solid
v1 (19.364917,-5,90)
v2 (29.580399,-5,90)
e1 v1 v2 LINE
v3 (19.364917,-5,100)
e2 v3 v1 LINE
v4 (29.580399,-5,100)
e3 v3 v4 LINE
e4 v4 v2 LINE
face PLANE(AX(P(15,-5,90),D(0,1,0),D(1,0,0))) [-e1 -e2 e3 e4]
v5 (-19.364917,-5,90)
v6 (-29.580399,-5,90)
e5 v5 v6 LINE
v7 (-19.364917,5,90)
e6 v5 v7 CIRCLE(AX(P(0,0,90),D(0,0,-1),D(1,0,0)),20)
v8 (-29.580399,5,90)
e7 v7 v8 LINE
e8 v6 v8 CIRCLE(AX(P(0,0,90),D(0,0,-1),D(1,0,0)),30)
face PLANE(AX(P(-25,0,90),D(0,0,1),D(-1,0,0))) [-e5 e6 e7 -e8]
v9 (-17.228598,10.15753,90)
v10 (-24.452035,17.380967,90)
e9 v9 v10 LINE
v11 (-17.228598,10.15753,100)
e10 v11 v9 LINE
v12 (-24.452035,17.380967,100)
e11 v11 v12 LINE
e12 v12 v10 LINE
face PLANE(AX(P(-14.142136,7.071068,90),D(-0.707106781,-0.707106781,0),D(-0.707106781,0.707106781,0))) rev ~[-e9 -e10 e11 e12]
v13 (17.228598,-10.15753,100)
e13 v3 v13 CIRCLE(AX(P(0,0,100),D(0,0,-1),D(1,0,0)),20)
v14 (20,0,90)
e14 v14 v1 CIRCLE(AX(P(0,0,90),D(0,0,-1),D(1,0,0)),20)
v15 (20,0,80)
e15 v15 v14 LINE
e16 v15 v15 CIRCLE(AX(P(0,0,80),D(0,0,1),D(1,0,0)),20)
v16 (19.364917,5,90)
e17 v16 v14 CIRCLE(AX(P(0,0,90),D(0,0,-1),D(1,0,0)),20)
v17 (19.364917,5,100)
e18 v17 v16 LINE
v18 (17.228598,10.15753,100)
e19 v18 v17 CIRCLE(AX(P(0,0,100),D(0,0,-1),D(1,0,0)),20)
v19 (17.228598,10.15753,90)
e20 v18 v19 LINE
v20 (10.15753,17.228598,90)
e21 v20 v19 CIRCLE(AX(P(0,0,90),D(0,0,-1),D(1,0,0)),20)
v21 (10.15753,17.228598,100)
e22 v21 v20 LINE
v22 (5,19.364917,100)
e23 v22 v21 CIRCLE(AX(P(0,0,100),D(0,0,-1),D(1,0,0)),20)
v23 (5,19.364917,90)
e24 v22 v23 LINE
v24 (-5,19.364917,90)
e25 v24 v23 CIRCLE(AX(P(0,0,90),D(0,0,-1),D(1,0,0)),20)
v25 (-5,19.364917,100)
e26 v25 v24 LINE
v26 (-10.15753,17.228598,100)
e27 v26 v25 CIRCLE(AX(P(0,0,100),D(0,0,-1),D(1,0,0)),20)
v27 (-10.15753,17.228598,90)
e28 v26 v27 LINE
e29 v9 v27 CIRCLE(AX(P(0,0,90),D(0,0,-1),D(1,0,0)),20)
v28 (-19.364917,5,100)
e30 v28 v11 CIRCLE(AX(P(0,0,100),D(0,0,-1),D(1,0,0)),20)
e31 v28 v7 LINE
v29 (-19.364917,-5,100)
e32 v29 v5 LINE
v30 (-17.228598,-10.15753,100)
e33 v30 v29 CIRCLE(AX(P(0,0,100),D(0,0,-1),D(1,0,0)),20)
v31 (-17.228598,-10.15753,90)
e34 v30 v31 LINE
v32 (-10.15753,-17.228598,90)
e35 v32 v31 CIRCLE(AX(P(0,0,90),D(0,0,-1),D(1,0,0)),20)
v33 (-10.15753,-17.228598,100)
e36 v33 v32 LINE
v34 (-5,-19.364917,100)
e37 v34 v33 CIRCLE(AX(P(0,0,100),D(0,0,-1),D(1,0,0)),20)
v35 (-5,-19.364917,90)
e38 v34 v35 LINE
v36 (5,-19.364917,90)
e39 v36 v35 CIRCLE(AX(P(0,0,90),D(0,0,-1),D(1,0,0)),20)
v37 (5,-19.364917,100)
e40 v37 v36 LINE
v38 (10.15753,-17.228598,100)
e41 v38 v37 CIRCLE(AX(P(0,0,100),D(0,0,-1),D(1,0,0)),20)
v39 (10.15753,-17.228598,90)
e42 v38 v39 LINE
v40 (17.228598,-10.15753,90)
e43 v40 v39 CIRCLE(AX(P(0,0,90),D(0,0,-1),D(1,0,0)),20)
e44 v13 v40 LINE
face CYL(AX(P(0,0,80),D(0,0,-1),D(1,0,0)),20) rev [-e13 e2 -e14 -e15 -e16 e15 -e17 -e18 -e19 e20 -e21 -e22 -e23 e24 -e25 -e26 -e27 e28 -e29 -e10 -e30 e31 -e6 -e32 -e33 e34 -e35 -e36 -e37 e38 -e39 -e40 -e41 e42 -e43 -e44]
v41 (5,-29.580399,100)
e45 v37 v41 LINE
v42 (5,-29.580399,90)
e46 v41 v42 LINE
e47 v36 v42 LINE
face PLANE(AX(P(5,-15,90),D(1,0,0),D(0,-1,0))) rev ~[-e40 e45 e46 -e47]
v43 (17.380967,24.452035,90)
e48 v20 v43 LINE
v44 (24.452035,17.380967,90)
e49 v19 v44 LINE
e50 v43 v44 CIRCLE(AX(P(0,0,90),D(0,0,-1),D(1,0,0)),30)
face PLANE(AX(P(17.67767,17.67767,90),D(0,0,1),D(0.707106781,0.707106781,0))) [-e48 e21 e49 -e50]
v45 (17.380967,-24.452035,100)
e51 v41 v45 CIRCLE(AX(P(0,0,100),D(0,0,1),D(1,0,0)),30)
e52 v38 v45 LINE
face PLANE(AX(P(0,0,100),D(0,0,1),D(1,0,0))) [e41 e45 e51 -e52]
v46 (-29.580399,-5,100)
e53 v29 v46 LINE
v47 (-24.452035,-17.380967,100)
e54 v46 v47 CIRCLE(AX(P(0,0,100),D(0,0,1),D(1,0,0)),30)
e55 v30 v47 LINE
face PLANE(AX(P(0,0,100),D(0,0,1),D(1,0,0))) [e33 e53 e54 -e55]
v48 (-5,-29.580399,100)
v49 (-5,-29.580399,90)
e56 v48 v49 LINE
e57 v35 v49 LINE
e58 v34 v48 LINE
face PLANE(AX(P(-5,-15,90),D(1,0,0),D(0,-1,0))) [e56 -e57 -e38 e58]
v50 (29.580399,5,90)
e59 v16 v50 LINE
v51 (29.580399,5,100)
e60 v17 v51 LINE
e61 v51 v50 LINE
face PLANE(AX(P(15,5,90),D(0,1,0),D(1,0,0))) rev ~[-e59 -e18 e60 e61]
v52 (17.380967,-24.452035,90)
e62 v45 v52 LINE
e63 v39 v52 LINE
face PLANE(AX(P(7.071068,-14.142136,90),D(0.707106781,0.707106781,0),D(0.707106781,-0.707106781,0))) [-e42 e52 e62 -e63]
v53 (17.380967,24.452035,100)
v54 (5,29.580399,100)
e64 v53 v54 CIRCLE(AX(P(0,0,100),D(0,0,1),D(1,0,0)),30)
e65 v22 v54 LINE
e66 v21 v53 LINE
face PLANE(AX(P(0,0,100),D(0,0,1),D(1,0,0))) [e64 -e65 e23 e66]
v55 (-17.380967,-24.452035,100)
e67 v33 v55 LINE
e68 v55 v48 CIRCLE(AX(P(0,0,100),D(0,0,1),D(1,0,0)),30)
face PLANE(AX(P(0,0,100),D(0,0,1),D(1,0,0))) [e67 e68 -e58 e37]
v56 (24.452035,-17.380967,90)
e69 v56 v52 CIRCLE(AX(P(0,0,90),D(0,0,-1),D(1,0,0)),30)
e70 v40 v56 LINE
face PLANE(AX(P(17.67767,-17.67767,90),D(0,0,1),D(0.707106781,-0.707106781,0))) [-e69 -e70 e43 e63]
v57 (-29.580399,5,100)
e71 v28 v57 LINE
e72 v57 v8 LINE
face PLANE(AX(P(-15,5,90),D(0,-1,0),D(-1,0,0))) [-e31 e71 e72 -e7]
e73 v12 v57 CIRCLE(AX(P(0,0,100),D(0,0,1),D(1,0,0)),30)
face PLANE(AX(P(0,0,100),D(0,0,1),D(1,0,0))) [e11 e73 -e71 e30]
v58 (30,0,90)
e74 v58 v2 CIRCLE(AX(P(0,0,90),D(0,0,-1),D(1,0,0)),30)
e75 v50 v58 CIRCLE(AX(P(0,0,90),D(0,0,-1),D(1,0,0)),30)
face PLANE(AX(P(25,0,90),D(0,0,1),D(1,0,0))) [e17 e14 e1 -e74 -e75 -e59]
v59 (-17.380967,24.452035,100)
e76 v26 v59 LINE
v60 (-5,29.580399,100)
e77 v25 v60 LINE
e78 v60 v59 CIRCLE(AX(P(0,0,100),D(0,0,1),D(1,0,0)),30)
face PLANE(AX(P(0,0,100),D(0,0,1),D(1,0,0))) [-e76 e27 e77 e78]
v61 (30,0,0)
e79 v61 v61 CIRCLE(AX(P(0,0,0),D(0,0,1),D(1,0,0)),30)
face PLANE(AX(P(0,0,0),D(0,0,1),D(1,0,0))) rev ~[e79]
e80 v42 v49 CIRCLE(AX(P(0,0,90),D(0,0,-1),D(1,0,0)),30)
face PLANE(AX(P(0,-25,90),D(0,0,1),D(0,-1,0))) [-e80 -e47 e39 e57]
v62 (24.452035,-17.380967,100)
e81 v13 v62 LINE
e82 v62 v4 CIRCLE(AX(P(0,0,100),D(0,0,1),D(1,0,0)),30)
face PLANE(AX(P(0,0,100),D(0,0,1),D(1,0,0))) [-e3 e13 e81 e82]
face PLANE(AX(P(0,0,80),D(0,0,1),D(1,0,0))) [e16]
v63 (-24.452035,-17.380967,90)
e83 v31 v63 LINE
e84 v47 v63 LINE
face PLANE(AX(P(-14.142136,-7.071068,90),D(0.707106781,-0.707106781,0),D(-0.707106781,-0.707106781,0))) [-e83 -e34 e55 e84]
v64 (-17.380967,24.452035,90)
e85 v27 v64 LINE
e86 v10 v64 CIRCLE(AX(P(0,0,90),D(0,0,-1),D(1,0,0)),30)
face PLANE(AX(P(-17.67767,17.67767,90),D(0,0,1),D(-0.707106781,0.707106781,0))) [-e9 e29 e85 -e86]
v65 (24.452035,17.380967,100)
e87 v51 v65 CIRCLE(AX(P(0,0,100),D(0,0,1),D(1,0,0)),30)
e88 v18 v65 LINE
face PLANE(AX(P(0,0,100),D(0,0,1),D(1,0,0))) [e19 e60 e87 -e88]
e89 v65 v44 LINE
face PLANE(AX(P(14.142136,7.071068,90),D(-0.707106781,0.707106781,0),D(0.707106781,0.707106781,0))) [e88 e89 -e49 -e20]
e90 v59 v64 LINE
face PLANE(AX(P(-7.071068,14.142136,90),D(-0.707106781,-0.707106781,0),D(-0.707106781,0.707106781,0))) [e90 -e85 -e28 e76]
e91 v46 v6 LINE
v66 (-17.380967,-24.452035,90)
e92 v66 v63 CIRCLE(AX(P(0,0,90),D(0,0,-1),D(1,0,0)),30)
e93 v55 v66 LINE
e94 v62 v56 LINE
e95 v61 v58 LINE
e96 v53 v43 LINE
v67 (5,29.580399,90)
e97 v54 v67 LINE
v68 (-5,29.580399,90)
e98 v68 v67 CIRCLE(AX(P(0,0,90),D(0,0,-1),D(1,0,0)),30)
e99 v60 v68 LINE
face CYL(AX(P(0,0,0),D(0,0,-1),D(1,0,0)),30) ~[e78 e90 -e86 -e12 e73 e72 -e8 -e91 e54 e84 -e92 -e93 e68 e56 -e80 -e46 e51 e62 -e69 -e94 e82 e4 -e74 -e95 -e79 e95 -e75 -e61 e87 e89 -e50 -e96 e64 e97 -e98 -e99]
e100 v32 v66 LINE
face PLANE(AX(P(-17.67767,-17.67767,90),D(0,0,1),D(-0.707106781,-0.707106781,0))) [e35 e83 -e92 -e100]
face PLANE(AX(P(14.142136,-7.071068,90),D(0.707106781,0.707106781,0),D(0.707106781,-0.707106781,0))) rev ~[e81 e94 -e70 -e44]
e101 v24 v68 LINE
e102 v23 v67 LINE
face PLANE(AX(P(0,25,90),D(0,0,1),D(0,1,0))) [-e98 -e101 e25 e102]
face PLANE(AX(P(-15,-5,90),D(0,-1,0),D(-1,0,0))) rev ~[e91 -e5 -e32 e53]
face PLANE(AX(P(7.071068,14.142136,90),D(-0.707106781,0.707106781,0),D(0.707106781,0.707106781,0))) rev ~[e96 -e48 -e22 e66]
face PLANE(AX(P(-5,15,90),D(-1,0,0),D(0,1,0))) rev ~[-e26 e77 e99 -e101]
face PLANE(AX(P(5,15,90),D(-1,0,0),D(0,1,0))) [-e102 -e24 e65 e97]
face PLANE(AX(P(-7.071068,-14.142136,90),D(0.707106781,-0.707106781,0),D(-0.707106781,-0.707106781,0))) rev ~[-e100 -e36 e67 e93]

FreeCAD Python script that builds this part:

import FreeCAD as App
import Part
import Sketcher

doc = App.newDocument("Part")
body = doc.addObject("PartDesign::Body", "Body")

# Sketch on XY plane
sketch1 = body.newObject("Sketcher::SketchObject", "Sketch")
sketch1.AttachmentSupport = (doc.getObject("XY_Plane"), [""])
sketch1.MapMode = "FlatFace"
sketch1.AttachmentOffset = App.Placement(App.Vector(0, 0, 90), App.Rotation())
sketch1.addGeometry(Part.LineSegment(App.Vector(15, 5, 0), App.Vector(15, -5, 0)), False)
sketch1.addGeometry(Part.LineSegment(App.Vector(15, -5, 0), App.Vector(35, -5, 0)), False)
sketch1.addGeometry(Part.LineSegment(App.Vector(35, -5, 0), App.Vector(35, 5, 0)), False)
sketch1.addGeometry(Part.LineSegment(App.Vector(35, 5, 0), App.Vector(15, 5, 0)), False)
sketch1.addConstraint(Sketcher.Constraint("Coincident", 0, 2, 1, 1))
sketch1.addConstraint(Sketcher.Constraint("Coincident", 1, 2, 2, 1))
sketch1.addConstraint(Sketcher.Constraint("Coincident", 2, 2, 3, 1))
sketch1.addConstraint(Sketcher.Constraint("Coincident", 3, 2, 0, 1))
sketch1.addConstraint(Sketcher.Constraint("Vertical", 0))
sketch1.addConstraint(Sketcher.Constraint("Horizontal", 1))
sketch1.addConstraint(Sketcher.Constraint("Vertical", 2))
sketch1.addConstraint(Sketcher.Constraint("Horizontal", 3))
sketch1.addConstraint(Sketcher.Constraint("DistanceX", 1, 1, 1, 2, 20.0))
sketch1.addConstraint(Sketcher.Constraint("DistanceY", 0, 2, 0, 1, 10.0))
sketch1.addConstraint(Sketcher.Constraint("DistanceX", -1, 1, 0, 2, 15.0))
sketch1.addConstraint(Sketcher.Constraint("DistanceY", 0, 2, -1, 1, 5.0))
pad1 = body.newObject("PartDesign::Pad", "Pad")
pad1.Profile = sketch1
pad1.Length = 10
body2 = doc.addObject("PartDesign::Body", "Body001")
body2.AllowCompound = True
doc.recompute()

body2.BaseFeature = body
doc.recompute()

body3 = doc.addObject("PartDesign::Body", "Body002")
body3.BaseFeature = body
body3.Placement = App.Placement(App.Vector(0, 0, 0), App.Rotation(App.Vector(0, 0, 1), 45))
boolean = body2.newObject("PartDesign::Boolean", "Boolean")
boolean.Type = "Fuse"
boolean.addObjects([body3])
doc.recompute()

body4 = doc.addObject("PartDesign::Body", "Body003")
body4.BaseFeature = body
body4.Placement = App.Placement(App.Vector(0, 0, 0), App.Rotation(App.Vector(0, 0, 1), 90))
boolean2 = body2.newObject("PartDesign::Boolean", "Boolean001")
boolean2.Type = "Fuse"
boolean2.addObjects([body4])
doc.recompute()

body5 = doc.addObject("PartDesign::Body", "Body004")
body5.BaseFeature = body
body5.Placement = App.Placement(App.Vector(0, 0, 0), App.Rotation(App.Vector(0, 0, 1), 135))
boolean3 = body2.newObject("PartDesign::Boolean", "Boolean002")
boolean3.Type = "Fuse"
boolean3.addObjects([body5])
doc.recompute()

body6 = doc.addObject("PartDesign::Body", "Body005")
body6.BaseFeature = body
body6.Placement = App.Placement(App.Vector(0, 0, 0), App.Rotation(App.Vector(0, 0, 1), 180))
boolean4 = body2.newObject("PartDesign::Boolean", "Boolean003")
boolean4.Type = "Fuse"
boolean4.addObjects([body6])
doc.recompute()

body7 = doc.addObject("PartDesign::Body", "Body006")
body7.BaseFeature = body
body7.Placement = App.Placement(App.Vector(0, 0, 0), App.Rotation(App.Vector(0, 0, 1), 225))
boolean5 = body2.newObject("PartDesign::Boolean", "Boolean004")
boolean5.Type = "Fuse"
boolean5.addObjects([body7])
doc.recompute()

body8 = doc.addObject("PartDesign::Body", "Body007")
body8.BaseFeature = body
body8.Placement = App.Placement(App.Vector(0, 0, 0), App.Rotation(App.Vector(0, 0, 1), 270))
boolean6 = body2.newObject("PartDesign::Boolean", "Boolean005")
boolean6.Type = "Fuse"
boolean6.addObjects([body8])
doc.recompute()

body.Placement = App.Placement(App.Vector(0, 0, 0), App.Rotation(App.Vector(0, 0, 1), 315))
boolean7 = body2.newObject("PartDesign::Boolean", "Boolean006")
boolean7.Type = "Fuse"
boolean7.addObjects([body])
body9 = doc.addObject("PartDesign::Body", "Body008")

# Sketch on XY plane
sketch2 = body9.newObject("Sketcher::SketchObject", "Sketch001")
sketch2.AttachmentSupport = (doc.getObject("XY_Plane008"), [""])
sketch2.MapMode = "FlatFace"
sketch2.AttachmentOffset = App.Placement(App.Vector(0, 0, 80), App.Rotation())
sketch2.addGeometry(Part.Circle(App.Vector(0, 0, 0), App.Vector(0, 0, 1), 20), False)
sketch2.addConstraint(Sketcher.Constraint("Coincident", 0, 3, -1, 1))
sketch2.addConstraint(Sketcher.Constraint("Diameter", 0, 40.0))
pad2 = body9.newObject("PartDesign::Pad", "Pad001")
pad2.Profile = sketch2
pad2.Length = 50
body10 = doc.addObject("PartDesign::Body", "Body009")

# Sketch on XY plane
sketch3 = body10.newObject("Sketcher::SketchObject", "Sketch002")
sketch3.AttachmentSupport = (doc.getObject("XY_Plane009"), [""])
sketch3.MapMode = "FlatFace"
sketch3.addGeometry(Part.Circle(App.Vector(0, 0, 0), App.Vector(0, 0, 1), 30), False)
sketch3.addConstraint(Sketcher.Constraint("Coincident", 0, 3, -1, 1))
sketch3.addConstraint(Sketcher.Constraint("Diameter", 0, 60.0))
pad3 = body10.newObject("PartDesign::Pad", "Pad002")
pad3.Profile = sketch3
pad3.Length = 100
doc.recompute()

boolean8 = body10.newObject("PartDesign::Boolean", "Boolean007")
boolean8.Type = "Cut"
boolean8.addObjects([body9])
doc.recompute()

boolean9 = body10.newObject("PartDesign::Boolean", "Boolean008")
boolean9.Type = "Cut"
boolean9.addObjects([body2])

doc.recompute()
